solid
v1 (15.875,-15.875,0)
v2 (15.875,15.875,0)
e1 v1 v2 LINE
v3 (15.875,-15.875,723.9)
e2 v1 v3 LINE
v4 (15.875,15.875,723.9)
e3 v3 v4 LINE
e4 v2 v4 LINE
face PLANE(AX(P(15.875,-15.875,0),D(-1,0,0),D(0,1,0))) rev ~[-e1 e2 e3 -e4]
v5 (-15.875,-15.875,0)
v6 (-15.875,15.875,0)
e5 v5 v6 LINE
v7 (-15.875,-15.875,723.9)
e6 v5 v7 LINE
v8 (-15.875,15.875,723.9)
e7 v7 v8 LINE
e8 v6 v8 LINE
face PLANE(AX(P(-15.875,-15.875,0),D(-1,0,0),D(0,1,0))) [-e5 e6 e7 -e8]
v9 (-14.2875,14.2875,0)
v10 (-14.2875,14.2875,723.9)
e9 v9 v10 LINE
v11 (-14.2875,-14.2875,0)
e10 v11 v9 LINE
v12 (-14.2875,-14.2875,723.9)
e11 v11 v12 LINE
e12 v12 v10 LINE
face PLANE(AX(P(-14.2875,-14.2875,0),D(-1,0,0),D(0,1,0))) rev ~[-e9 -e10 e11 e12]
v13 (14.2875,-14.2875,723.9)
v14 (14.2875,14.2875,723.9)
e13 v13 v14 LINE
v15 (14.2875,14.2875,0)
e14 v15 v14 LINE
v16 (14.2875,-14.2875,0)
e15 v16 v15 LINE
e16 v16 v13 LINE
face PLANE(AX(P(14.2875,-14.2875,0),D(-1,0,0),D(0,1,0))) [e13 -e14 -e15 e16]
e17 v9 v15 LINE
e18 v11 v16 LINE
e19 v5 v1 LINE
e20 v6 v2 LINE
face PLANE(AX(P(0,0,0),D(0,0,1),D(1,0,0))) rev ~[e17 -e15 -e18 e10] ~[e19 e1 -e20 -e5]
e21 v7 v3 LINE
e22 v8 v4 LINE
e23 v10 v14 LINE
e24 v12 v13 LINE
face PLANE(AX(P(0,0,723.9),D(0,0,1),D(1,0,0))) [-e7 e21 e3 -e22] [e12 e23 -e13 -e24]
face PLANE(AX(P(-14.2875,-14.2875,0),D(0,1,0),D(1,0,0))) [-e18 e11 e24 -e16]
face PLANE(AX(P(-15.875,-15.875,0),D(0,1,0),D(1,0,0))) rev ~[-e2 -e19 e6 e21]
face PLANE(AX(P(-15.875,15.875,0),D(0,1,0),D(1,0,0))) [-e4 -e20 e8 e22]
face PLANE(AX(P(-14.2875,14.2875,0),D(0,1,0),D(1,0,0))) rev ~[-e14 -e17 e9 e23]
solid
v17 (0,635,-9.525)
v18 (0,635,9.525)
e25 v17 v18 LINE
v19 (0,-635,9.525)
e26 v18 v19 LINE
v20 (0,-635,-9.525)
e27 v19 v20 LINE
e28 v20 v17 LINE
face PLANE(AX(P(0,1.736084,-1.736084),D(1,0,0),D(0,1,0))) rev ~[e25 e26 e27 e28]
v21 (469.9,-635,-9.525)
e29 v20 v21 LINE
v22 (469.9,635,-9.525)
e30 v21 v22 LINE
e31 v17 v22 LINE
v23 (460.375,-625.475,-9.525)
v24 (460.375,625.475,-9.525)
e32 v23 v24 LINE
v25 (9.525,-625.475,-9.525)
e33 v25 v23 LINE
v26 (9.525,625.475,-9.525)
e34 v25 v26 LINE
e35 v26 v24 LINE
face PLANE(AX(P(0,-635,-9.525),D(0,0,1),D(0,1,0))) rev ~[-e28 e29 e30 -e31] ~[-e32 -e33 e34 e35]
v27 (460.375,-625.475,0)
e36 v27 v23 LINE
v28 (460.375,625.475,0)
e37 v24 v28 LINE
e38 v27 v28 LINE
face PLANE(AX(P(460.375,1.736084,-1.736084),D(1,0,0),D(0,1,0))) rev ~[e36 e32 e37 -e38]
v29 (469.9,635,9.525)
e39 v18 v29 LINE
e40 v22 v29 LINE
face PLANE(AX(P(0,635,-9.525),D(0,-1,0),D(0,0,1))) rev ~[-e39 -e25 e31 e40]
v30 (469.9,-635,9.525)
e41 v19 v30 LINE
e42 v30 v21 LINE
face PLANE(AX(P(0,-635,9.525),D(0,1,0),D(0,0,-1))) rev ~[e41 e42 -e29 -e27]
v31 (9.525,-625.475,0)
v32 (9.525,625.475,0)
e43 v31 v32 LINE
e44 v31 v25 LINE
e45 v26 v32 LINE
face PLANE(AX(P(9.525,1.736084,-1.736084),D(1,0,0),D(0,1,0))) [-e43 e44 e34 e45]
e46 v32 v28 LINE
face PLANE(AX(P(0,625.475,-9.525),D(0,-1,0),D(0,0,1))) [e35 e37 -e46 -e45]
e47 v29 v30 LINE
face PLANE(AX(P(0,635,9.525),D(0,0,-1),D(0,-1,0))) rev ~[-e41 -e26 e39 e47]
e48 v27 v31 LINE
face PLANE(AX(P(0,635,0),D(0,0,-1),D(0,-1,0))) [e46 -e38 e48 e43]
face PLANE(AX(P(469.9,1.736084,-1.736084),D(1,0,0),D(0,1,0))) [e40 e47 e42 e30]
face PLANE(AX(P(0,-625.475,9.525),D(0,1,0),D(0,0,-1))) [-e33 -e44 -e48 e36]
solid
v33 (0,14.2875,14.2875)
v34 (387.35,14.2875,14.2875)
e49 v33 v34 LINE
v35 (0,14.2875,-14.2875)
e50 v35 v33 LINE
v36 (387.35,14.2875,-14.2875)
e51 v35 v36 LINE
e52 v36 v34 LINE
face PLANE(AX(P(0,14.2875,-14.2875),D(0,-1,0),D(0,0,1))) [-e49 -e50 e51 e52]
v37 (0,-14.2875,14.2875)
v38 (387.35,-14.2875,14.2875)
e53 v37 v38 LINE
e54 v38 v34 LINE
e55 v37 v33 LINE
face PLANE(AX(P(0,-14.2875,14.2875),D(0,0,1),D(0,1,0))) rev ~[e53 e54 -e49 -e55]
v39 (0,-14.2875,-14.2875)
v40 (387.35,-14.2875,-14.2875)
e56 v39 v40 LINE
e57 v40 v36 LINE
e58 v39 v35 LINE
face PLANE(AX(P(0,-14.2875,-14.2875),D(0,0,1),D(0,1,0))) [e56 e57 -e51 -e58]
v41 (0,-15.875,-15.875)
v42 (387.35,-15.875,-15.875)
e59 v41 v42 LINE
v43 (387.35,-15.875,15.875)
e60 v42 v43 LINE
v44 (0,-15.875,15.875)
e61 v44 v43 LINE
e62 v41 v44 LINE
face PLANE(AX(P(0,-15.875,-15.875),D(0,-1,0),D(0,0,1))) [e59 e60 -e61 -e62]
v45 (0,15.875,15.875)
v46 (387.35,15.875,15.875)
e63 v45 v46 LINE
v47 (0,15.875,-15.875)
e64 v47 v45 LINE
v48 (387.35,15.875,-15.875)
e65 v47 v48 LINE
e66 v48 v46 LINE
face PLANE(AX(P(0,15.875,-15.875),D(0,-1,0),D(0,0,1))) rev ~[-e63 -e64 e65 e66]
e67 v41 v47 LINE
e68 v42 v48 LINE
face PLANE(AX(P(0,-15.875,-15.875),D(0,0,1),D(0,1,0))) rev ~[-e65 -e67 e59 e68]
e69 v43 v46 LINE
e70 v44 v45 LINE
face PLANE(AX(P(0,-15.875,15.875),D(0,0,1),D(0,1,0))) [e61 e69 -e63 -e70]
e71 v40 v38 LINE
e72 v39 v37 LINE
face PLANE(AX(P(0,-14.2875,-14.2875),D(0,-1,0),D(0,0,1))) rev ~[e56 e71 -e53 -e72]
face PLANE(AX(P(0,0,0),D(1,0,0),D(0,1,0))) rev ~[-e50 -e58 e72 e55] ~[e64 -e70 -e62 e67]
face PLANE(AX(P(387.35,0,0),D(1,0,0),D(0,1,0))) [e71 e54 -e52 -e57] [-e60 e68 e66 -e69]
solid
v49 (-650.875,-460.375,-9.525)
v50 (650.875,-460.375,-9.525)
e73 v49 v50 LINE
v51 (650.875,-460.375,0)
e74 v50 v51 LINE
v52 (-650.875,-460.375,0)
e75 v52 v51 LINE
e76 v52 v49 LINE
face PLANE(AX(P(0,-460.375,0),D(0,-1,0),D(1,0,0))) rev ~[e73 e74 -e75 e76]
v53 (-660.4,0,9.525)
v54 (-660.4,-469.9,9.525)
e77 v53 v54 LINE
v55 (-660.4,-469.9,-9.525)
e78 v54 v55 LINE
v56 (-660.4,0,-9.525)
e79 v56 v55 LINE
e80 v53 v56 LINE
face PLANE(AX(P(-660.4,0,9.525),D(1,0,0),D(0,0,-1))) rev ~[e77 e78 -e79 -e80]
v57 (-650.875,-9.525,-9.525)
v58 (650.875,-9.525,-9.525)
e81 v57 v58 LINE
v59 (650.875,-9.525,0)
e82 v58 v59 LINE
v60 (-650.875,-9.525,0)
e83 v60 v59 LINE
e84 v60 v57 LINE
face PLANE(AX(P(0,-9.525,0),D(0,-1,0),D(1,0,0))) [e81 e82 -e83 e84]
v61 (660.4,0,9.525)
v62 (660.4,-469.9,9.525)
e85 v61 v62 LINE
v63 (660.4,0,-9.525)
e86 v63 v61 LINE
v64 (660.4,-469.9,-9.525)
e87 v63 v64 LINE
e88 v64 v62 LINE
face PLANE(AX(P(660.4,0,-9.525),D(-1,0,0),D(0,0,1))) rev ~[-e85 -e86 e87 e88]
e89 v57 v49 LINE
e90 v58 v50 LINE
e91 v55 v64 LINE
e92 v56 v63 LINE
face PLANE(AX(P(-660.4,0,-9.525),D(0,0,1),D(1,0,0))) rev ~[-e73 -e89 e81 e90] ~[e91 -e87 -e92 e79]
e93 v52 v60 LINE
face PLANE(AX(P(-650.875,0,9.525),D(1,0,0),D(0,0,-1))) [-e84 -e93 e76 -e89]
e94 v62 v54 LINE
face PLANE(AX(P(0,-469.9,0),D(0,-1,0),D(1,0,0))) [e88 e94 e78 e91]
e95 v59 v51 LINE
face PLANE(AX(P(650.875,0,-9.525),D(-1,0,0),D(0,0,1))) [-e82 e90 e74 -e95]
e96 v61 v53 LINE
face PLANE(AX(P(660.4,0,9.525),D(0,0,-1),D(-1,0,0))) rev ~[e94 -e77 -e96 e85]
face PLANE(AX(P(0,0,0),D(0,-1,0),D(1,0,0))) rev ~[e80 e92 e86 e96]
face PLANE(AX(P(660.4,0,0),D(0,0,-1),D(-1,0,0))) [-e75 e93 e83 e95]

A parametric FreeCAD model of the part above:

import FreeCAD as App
import Part
import Sketcher
from FreeCAD import Vector
Q = App.Units.Quantity


def faces_at(feature, points):
    """Names of the faces that lie closest to the given points."""
    faces = feature.Shape.Faces
    near = lambda p: min(range(len(faces)), key=lambda i: faces[i].distToShape(Part.Vertex(*p))[0])
    return sorted({f"Face{near(p) + 1}" for p in points})

doc = App.newDocument("Part")
body = doc.addObject("PartDesign::Body", "Body")

# Sketch on XZ plane
sketch1 = doc.addObject("Sketcher::SketchObject", "Sketch")
body.addObject(sketch1)
sketch1.AttachmentSupport = (doc.XZ_Plane, [""])
sketch1.MapMode = "FlatFace"
sketch1.addGeometry([
    Part.LineSegment(Vector(660, 10, 0), Vector(-660, 10, 0)),
    Part.LineSegment(Vector(-660, 10, 0), Vector(-660, -10, 0)),
    Part.LineSegment(Vector(-660, -10, 0), Vector(660, -10, 0)),
    Part.LineSegment(Vector(660, -10, 0), Vector(660, 10, 0)),
], False)
sketch1.addConstraint([
    Sketcher.Constraint("Coincident", 0, 2, 1, 1),
    Sketcher.Constraint("Coincident", 1, 2, 2, 1),
    Sketcher.Constraint("Coincident", 2, 2, 3, 1),
    Sketcher.Constraint("Coincident", 3, 2, 0, 1),
    Sketcher.Constraint("Horizontal", 0),
    Sketcher.Constraint("Vertical", 1),
    Sketcher.Constraint("Horizontal", 2),
    Sketcher.Constraint("Vertical", 3),
    Sketcher.Constraint("Symmetric", 0, 2, 2, 2, -1, 1),
    Sketcher.Constraint("DistanceX", 0, 2, 0, 1, Q("52 in")),
    Sketcher.Constraint("DistanceY", 1, 2, 1, 1, Q("0.75 in")),
])
pad1 = doc.addObject("PartDesign::Pad", "Pad")
body.addObject(pad1)
pad1.Profile = sketch1
pad1.Length = Q("18.5 in")
doc.recompute()

thickness = doc.addObject("PartDesign::Thickness", "Thickness")
body.addObject(thickness)
thickness.Base = (pad1, faces_at(pad1, [(0, -234.95, -9.525)]))
thickness.Value = Q("0.375 in")
thickness.Reversed = True
thickness.Join = "Arc"
body2 = doc.addObject("PartDesign::Body", "Body001")

# Sketch on YZ plane
sketch2 = doc.addObject("Sketcher::SketchObject", "Sketch001")
body2.addObject(sketch2)
sketch2.AttachmentSupport = (doc.getObject("YZ_Plane001"), [""])
sketch2.MapMode = "FlatFace"
sketch2.addGeometry([
    Part.LineSegment(Vector(635, -10, 0), Vector(635, 10, 0)),
    Part.LineSegment(Vector(635, 10, 0), Vector(-635, 10, 0)),
    Part.LineSegment(Vector(-635, 10, 0), Vector(-635, -10, 0)),
    Part.LineSegment(Vector(-635, -10, 0), Vector(635, -10, 0)),
], False)
sketch2.addConstraint([
    Sketcher.Constraint("Coincident", 0, 2, 1, 1),
    Sketcher.Constraint("Coincident", 1, 2, 2, 1),
    Sketcher.Constraint("Coincident", 2, 2, 3, 1),
    Sketcher.Constraint("Coincident", 3, 2, 0, 1),
    Sketcher.Constraint("Vertical", 0),
    Sketcher.Constraint("Horizontal", 1),
    Sketcher.Constraint("Vertical", 2),
    Sketcher.Constraint("Horizontal", 3),
    Sketcher.Constraint("Symmetric", 0, 2, 2, 2, -1, 1),
    Sketcher.Constraint("DistanceX", 1, 2, 1, 1, Q("50 in")),
    Sketcher.Constraint("DistanceY", 0, 1, 0, 2, Q("0.75 in")),
])
pad2 = doc.addObject("PartDesign::Pad", "Pad001")
body2.addObject(pad2)
pad2.Profile = sketch2
pad2.Length = Q("18.5 in")
doc.recompute()

thickness2 = doc.addObject("PartDesign::Thickness", "Thickness001")
body2.addObject(thickness2)
thickness2.Base = (pad2, faces_at(pad2, [(234.95, 0, -9.525)]))
thickness2.Value = Q("0.375 in")
thickness2.Reversed = True
thickness2.Join = "Arc"
body3 = doc.addObject("PartDesign::Body", "Body002")

# Sketch on XY plane
sketch3 = doc.addObject("Sketcher::SketchObject", "Sketch002")
body3.addObject(sketch3)
sketch3.AttachmentSupport = (doc.getObject("XY_Plane002"), [""])
sketch3.MapMode = "FlatFace"
sketch3.addGeometry([
    Part.LineSegment(Vector(-16, 16, 0), Vector(-16, -16, 0)),  # 0
    Part.LineSegment(Vector(-16, -16, 0), Vector(16, -16, 0)),  # 1
    Part.LineSegment(Vector(16, -16, 0), Vector(16, 16, 0)),  # 2
    Part.LineSegment(Vector(16, 16, 0), Vector(-16, 16, 0)),  # 3
    Part.LineSegment(Vector(14, -14, 0), Vector(-14, -14, 0)),  # 4
    Part.LineSegment(Vector(-14, -14, 0), Vector(-14, 14, 0)),  # 5
    Part.LineSegment(Vector(-14, 14, 0), Vector(14, 14, 0)),  # 6
    Part.LineSegment(Vector(14, 14, 0), Vector(14, -14, 0)),  # 7
], False)
sketch3.addConstraint([
    Sketcher.Constraint("Coincident", 0, 2, 1, 1),
    Sketcher.Constraint("Coincident", 1, 2, 2, 1),
    Sketcher.Constraint("Coincident", 2, 2, 3, 1),
    Sketcher.Constraint("Coincident", 3, 2, 0, 1),
    Sketcher.Constraint("Coincident", 4, 2, 5, 1),
    Sketcher.Constraint("Coincident", 5, 2, 6, 1),
    Sketcher.Constraint("Coincident", 6, 2, 7, 1),
    Sketcher.Constraint("Coincident", 7, 2, 4, 1),
    Sketcher.Constraint("Vertical", 0),
    Sketcher.Constraint("Horizontal", 1),
    Sketcher.Constraint("Vertical", 2),
    Sketcher.Constraint("Horizontal", 3),
    Sketcher.Constraint("Horizontal", 4),
    Sketcher.Constraint("Vertical", 5),
    Sketcher.Constraint("Horizontal", 6),
    Sketcher.Constraint("Vertical", 7),
    Sketcher.Constraint("Symmetric", 0, 2, 2, 2, -1, 1),
    Sketcher.Constraint("Symmetric", 4, 2, 6, 2, -1, 1),
    Sketcher.Constraint("Equal", 3, 0),
    Sketcher.Constraint("Equal", 6, 5),
    Sketcher.Constraint("DistanceX", 1, 1, 1, 2, Q("1.25 in")),
    Sketcher.Constraint("DistanceX", 4, 2, 4, 1, Q("1.125 in")),
])
pad3 = doc.addObject("PartDesign::Pad", "Pad002")
body3.addObject(pad3)
pad3.Profile = sketch3
pad3.Length = Q("28.5 in")
body4 = doc.addObject("PartDesign::Body", "Body003")

# Sketch on YZ plane
sketch4 = doc.addObject("Sketcher::SketchObject", "Sketch003")
body4.addObject(sketch4)
sketch4.AttachmentSupport = (doc.getObject("YZ_Plane003"), [""])
sketch4.MapMode = "FlatFace"
sketch4.addGeometry([
    Part.LineSegment(Vector(-16, 16, 0), Vector(-16, -16, 0)),  # 0
    Part.LineSegment(Vector(-16, -16, 0), Vector(16, -16, 0)),  # 1
    Part.LineSegment(Vector(16, -16, 0), Vector(16, 16, 0)),  # 2
    Part.LineSegment(Vector(16, 16, 0), Vector(-16, 16, 0)),  # 3
    Part.LineSegment(Vector(14, -14, 0), Vector(-14, -14, 0)),  # 4
    Part.LineSegment(Vector(-14, -14, 0), Vector(-14, 14, 0)),  # 5
    Part.LineSegment(Vector(-14, 14, 0), Vector(14, 14, 0)),  # 6
    Part.LineSegment(Vector(14, 14, 0), Vector(14, -14, 0)),  # 7
], False)
sketch4.addConstraint([
    Sketcher.Constraint("Coincident", 0, 2, 1, 1),
    Sketcher.Constraint("Coincident", 1, 2, 2, 1),
    Sketcher.Constraint("Coincident", 2, 2, 3, 1),
    Sketcher.Constraint("Coincident", 3, 2, 0, 1),
    Sketcher.Constraint("Coincident", 4, 2, 5, 1),
    Sketcher.Constraint("Coincident", 5, 2, 6, 1),
    Sketcher.Constraint("Coincident", 6, 2, 7, 1),
    Sketcher.Constraint("Coincident", 7, 2, 4, 1),
    Sketcher.Constraint("Vertical", 0),
    Sketcher.Constraint("Horizontal", 1),
    Sketcher.Constraint("Vertical", 2),
    Sketcher.Constraint("Horizontal", 3),
    Sketcher.Constraint("Horizontal", 4),
    Sketcher.Constraint("Vertical", 5),
    Sketcher.Constraint("Horizontal", 6),
    Sketcher.Constraint("Vertical", 7),
    Sketcher.Constraint("Symmetric", 0, 2, 2, 2, -1, 1),
    Sketcher.Constraint("Symmetric", 4, 2, 6, 2, -1, 1),
    Sketcher.Constraint("Equal", 3, 0),
    Sketcher.Constraint("Equal", 6, 5),
    Sketcher.Constraint("DistanceX", 1, 1, 1, 2, Q("1.25 in")),
    Sketcher.Constraint("DistanceX", 4, 2, 4, 1, Q("1.125 in")),
])
pad4 = doc.addObject("PartDesign::Pad", "Pad003")
body4.addObject(pad4)
pad4.Profile = sketch4
pad4.Length = Q("15.25 in")

doc.recompute()
